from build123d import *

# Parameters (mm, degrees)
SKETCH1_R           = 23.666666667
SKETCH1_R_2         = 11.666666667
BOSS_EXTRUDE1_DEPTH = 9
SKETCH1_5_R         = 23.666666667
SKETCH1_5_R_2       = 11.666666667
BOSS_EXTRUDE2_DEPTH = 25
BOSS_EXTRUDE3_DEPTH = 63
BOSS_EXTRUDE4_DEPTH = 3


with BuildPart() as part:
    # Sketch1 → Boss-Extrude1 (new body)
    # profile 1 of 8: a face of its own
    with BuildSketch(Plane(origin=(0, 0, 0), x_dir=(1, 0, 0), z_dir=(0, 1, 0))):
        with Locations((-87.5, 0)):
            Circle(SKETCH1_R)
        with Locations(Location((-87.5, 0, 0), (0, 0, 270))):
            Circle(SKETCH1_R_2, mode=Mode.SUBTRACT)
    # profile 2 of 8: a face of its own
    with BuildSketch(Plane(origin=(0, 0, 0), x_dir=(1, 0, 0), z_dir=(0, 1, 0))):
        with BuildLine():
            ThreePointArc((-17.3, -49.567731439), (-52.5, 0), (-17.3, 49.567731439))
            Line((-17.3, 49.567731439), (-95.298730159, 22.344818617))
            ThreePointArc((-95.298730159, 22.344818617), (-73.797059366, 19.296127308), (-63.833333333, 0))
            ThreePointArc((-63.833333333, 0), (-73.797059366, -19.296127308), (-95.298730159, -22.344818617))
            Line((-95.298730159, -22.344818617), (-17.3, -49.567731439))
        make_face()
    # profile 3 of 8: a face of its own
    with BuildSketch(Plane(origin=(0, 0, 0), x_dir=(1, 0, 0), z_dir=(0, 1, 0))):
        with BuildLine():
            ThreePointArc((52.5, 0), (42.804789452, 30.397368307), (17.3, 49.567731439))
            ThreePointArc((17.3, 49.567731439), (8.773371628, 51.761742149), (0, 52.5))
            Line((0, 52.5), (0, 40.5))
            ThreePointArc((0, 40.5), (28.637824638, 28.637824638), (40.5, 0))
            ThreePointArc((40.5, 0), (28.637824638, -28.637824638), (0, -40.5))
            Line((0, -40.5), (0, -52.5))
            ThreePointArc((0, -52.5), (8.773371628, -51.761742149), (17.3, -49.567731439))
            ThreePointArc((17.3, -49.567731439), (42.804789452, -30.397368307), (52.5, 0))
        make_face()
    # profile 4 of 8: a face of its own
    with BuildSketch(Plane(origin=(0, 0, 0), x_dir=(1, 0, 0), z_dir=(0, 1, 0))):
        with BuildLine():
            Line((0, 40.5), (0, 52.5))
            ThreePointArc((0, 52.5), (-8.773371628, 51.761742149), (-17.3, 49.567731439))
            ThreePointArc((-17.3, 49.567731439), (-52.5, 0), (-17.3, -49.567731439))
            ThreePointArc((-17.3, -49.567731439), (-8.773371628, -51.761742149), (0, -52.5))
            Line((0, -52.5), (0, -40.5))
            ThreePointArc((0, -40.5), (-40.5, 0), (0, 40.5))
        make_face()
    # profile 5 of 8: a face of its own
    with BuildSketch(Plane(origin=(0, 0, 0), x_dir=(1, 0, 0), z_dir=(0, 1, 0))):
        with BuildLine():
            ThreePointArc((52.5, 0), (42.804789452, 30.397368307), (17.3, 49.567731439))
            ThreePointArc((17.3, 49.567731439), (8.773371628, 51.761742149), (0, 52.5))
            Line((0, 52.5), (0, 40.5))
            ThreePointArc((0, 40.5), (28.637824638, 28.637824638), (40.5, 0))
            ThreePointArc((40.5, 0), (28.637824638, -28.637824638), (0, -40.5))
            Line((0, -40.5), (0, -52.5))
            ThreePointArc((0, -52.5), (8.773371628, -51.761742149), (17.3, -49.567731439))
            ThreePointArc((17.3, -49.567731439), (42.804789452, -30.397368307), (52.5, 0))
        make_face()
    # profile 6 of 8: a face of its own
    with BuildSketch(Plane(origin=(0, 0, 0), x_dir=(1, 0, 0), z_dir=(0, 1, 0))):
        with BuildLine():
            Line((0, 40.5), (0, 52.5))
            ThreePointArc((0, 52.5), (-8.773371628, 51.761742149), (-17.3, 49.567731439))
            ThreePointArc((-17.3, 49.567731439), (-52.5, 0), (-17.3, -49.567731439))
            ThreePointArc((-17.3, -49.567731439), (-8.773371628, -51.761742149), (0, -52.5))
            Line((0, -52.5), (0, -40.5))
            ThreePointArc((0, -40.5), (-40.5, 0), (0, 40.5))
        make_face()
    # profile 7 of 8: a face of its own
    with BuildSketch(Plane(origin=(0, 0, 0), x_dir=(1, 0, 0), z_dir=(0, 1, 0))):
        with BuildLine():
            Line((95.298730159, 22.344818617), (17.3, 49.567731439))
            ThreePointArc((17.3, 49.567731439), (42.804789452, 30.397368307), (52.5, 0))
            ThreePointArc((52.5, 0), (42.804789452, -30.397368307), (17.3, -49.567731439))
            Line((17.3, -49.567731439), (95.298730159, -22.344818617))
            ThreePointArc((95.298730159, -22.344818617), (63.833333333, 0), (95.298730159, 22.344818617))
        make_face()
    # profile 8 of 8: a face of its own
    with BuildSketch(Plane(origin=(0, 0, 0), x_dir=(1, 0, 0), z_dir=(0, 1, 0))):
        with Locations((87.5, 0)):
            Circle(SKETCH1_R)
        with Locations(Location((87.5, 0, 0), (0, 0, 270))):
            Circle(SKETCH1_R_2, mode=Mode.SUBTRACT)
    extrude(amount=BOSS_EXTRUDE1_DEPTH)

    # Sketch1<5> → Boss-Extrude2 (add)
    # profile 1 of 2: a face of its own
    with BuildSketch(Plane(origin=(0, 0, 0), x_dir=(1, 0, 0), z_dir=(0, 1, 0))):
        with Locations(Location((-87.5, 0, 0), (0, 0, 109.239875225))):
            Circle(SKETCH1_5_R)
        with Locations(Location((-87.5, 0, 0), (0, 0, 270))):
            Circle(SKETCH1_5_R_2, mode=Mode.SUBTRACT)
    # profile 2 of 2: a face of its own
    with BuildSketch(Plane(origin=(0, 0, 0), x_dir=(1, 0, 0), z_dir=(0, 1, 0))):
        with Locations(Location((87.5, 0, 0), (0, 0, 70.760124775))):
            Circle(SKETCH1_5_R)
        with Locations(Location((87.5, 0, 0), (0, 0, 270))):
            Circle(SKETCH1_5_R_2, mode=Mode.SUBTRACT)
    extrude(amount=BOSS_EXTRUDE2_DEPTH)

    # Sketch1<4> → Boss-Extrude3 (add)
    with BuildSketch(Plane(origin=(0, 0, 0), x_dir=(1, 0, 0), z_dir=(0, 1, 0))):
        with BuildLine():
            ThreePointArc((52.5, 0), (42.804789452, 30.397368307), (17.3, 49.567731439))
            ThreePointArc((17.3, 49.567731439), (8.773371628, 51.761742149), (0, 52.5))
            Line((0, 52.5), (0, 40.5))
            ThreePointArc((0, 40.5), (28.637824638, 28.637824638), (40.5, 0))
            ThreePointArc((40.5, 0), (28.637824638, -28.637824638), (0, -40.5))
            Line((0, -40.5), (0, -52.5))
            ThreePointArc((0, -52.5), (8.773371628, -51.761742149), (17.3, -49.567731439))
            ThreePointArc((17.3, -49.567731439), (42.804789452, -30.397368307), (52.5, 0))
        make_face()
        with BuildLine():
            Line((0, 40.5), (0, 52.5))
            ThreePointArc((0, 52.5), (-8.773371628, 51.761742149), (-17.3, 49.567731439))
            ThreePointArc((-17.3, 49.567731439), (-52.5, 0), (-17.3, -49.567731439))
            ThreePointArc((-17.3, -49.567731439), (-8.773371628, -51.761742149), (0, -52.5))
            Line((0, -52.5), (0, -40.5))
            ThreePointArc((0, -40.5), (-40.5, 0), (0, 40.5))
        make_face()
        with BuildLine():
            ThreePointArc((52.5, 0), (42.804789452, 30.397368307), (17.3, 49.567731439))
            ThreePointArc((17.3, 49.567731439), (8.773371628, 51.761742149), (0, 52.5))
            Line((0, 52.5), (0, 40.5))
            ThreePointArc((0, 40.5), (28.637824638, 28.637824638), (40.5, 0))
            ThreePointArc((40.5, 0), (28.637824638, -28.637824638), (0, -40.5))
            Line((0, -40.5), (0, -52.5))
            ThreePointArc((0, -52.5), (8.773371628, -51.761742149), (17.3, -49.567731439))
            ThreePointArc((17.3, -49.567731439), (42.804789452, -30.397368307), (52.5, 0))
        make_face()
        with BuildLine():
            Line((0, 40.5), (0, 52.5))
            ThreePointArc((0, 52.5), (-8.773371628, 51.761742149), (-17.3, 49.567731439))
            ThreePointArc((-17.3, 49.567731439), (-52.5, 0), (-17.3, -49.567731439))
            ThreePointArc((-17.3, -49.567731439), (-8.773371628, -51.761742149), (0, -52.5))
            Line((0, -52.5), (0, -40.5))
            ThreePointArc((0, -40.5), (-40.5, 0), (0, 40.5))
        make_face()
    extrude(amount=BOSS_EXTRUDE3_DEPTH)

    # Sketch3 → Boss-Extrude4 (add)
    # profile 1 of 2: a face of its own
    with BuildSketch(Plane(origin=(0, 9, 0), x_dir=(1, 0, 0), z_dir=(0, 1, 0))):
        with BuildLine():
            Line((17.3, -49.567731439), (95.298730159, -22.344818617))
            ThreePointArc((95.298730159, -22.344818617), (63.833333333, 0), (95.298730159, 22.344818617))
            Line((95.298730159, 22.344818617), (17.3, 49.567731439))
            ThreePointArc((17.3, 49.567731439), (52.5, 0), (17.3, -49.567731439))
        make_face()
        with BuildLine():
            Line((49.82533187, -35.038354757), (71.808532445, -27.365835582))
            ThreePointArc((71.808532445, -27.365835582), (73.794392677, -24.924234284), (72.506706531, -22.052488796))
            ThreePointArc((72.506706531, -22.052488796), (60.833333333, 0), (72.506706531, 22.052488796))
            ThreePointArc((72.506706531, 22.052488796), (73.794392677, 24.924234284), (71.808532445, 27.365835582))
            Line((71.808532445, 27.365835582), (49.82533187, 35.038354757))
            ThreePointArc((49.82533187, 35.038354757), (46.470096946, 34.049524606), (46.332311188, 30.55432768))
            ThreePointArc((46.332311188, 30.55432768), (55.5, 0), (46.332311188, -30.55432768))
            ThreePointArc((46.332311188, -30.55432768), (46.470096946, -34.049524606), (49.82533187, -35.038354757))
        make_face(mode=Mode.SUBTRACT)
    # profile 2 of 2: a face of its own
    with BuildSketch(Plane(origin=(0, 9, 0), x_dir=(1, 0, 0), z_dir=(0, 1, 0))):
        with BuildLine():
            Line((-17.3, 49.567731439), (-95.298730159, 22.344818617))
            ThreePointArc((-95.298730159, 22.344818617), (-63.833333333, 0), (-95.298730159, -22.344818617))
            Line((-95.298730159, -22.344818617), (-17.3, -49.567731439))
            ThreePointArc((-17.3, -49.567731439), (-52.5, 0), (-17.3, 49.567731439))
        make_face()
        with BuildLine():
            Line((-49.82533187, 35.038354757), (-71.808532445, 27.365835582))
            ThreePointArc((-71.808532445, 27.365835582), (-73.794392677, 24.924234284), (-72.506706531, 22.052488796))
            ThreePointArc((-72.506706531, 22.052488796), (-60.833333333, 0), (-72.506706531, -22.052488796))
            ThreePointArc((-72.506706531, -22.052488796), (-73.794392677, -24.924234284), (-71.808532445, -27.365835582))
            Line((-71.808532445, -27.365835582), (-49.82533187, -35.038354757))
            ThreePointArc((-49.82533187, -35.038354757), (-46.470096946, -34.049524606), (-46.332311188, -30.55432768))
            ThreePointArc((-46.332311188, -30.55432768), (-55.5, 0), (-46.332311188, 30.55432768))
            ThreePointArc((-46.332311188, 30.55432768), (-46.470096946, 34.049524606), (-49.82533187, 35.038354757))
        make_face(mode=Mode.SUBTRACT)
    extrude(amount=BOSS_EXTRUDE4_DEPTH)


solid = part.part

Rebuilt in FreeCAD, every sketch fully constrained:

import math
import FreeCAD as App
import Part
import Sketcher

V = App.Vector

doc = App.newDocument("Part")
params = doc.addObject("Spreadsheet::Sheet", "Params")
for row, (alias, value) in enumerate([
    ("sketch1_radius", "52.5 mm"),
    ("sketch1_radius2", "40.5 mm"),
    ("pad1_length", "9 mm"),
    ("pad2_length", "25 mm"),
    ("sketch3_radius", "52.5 mm"),
    ("sketch3_radius2", "40.5 mm"),
    ("pad3_length", "63 mm"),
    ("sketch4_radius", "3 mm"),
    ("sketch4_radius2", "52.5 mm"),
    ("sketch4_radius3", "55.5 mm"),
    ("pad4_length", "3 mm"),
], start=1):
    params.set(f"A{row}", alias)
    params.set(f"B{row}", "=" + value)
    params.setAlias(f"B{row}", alias)

body = doc.addObject("PartDesign::Body", "Body")

# Sketch on XZ plane
sketch1 = doc.addObject("Sketcher::SketchObject", "Sketch")
body.addObject(sketch1)
sketch1.AttachmentSupport = (doc.XZ_Plane, [""])
sketch1.MapMode = "FlatFace"
sketch1.addGeometry(Part.ArcOfCircle(Part.Circle(V(-88, 0, 0), V(0, 0, 1), 24), math.radians(109), math.radians(251)), False)
sketch1.addGeometry(Part.LineSegment(V(-95, 22, 0), V(-17, 50, 0)), False)
sketch1.addGeometry(Part.ArcOfCircle(Part.Circle(V(0, 0, 0), V(0, 0, 1), 52), math.radians(90), math.radians(109.24)), False)
sketch1.addGeometry(Part.ArcOfCircle(Part.Circle(V(0, 0, 0), V(0, 0, 1), 52), math.radians(70.76), math.radians(90)), False)
sketch1.addGeometry(Part.LineSegment(V(17, 50, 0), V(95, 22, 0)), False)
sketch1.addGeometry(Part.ArcOfCircle(Part.Circle(V(88, 0, 0), V(0, 0, 1), 24), math.radians(-71), math.radians(71)), False)
sketch1.addGeometry(Part.LineSegment(V(95, -22, 0), V(17, -50, 0)), False)
sketch1.addGeometry(Part.ArcOfCircle(Part.Circle(V(0, 0, 0), V(0, 0, 1), 52), math.radians(-90), math.radians(-70.76)), False)
sketch1.addGeometry(Part.ArcOfCircle(Part.Circle(V(0, 0, 0), V(0, 0, 1), 52), math.radians(-109.24), math.radians(-90)), False)
sketch1.addGeometry(Part.LineSegment(V(-17, -50, 0), V(-95, -22, 0)), False)
sketch1.addGeometry(Part.Circle(V(-88, 0, 0), V(0, 0, 1), 12), False)
sketch1.addGeometry(Part.ArcOfCircle(Part.Circle(V(0, 0, 0), V(0, 0, 1), 40), math.radians(90), math.radians(270)), False)
sketch1.addGeometry(Part.ArcOfCircle(Part.Circle(V(0, 0, 0), V(0, 0, 1), 40), math.radians(-90), math.radians(0)), False)
sketch1.addGeometry(Part.ArcOfCircle(Part.Circle(V(0, 0, 0), V(0, 0, 1), 40), math.radians(0), math.radians(90)), False)
sketch1.addGeometry(Part.Circle(V(88, 0, 0), V(0, 0, 1), 12), False)
sketch1.addConstraint(Sketcher.Constraint("Tangent", 0, 1, 1, 1))
sketch1.addConstraint(Sketcher.Constraint("Tangent", 1, 2, 2, 2))
sketch1.addConstraint(Sketcher.Constraint("Tangent", 2, 1, 3, 2))
sketch1.addConstraint(Sketcher.Constraint("Tangent", 3, 1, 4, 1))
sketch1.addConstraint(Sketcher.Constraint("Tangent", 4, 2, 5, 2))
sketch1.addConstraint(Sketcher.Constraint("Tangent", 5, 1, 6, 1))
sketch1.addConstraint(Sketcher.Constraint("Tangent", 6, 2, 7, 2))
sketch1.addConstraint(Sketcher.Constraint("Tangent", 7, 1, 8, 2))
sketch1.addConstraint(Sketcher.Constraint("Tangent", 8, 1, 9, 1))
sketch1.addConstraint(Sketcher.Constraint("Tangent", 9, 2, 0, 2))
sketch1.addConstraint(Sketcher.Constraint("Tangent", 11, 2, 12, 1))
sketch1.addConstraint(Sketcher.Constraint("Tangent", 12, 2, 13, 1))
sketch1.addConstraint(Sketcher.Constraint("Tangent", 13, 2, 11, 1))
sketch1.addConstraint(Sketcher.Constraint("Coincident", 2, 3, -1, 1))
sketch1.addConstraint(Sketcher.Constraint("Coincident", 7, 3, -1, 1))
sketch1.addConstraint(Sketcher.Constraint("Coincident", 11, 3, -1, 1))
sketch1.addConstraint(Sketcher.Constraint("Coincident", 10, 3, 0, 3))
sketch1.addConstraint(Sketcher.Constraint("Coincident", 14, 3, 5, 3))
sketch1.addConstraint(Sketcher.Constraint("Equal", 2, 3))
sketch1.addConstraint(Sketcher.Constraint("Equal", 0, 5))
sketch1.addConstraint(Sketcher.Constraint("Equal", 3, 7))
sketch1.addConstraint(Sketcher.Constraint("Equal", 7, 8))
sketch1.addConstraint(Sketcher.Constraint("Equal", 10, 14))
sketch1.addConstraint(Sketcher.Constraint("Symmetric", 0, 3, 5, 3, -1, 1))
sketch1.addConstraint(Sketcher.Constraint("PointOnObject", 0, 3, -1))
sketch1.addConstraint(Sketcher.Constraint("PointOnObject", 2, 1, -2))
sketch1.addConstraint(Sketcher.Constraint("PointOnObject", 7, 1, -2))
sketch1.addConstraint(Sketcher.Constraint("PointOnObject", 11, 2, -2))
sketch1.addConstraint(Sketcher.Constraint("PointOnObject", 12, 2, -1))
sketch1.addConstraint(Sketcher.Constraint("PointOnObject", 13, 2, -2))
sketch1.addConstraint(Sketcher.Constraint("Radius", 2, 52.5))
sketch1.addConstraint(Sketcher.Constraint("Radius", 11, 40.5))
sketch1.addConstraint(Sketcher.Constraint("DistanceX", 0, 3, 5, 3, 175.0))
sketch1.addConstraint(Sketcher.Constraint("DistanceX", 1, 2, -1, 1, 17.3))
sketch1.addConstraint(Sketcher.Constraint("Diameter", 10, 23.333333))
sketch1.setExpression("Constraints[30]", "Params.sketch1_radius")
sketch1.setExpression("Constraints[31]", "Params.sketch1_radius2")
pad1 = doc.addObject("PartDesign::Pad", "Pad")
body.addObject(pad1)
pad1.Profile = sketch1
pad1.setExpression("Length", "Params.pad1_length")
pad1.Reversed = True

# Sketch on XZ plane
sketch2 = doc.addObject("Sketcher::SketchObject", "Sketch001")
body.addObject(sketch2)
sketch2.AttachmentSupport = (doc.XZ_Plane, [""])
sketch2.MapMode = "FlatFace"
sketch2.addGeometry(Part.Circle(V(-88, 0, 0), V(0, 0, 1), 24), False)
sketch2.addGeometry(Part.Circle(V(-88, 0, 0), V(0, 0, 1), 12), False)
sketch2.addGeometry(Part.Circle(V(88, 0, 0), V(0, 0, 1), 24), False)
sketch2.addGeometry(Part.Circle(V(88, 0, 0), V(0, 0, 1), 12), False)
sketch2.addConstraint(Sketcher.Constraint("Coincident", 1, 3, 0, 3))
sketch2.addConstraint(Sketcher.Constraint("Coincident", 3, 3, 2, 3))
sketch2.addConstraint(Sketcher.Constraint("Equal", 0, 2))
sketch2.addConstraint(Sketcher.Constraint("Equal", 1, 3))
sketch2.addConstraint(Sketcher.Constraint("Symmetric", 0, 3, 2, 3, -1, 1))
sketch2.addConstraint(Sketcher.Constraint("PointOnObject", 0, 3, -1))
sketch2.addConstraint(Sketcher.Constraint("DistanceX", 0, 3, 2, 3, 175.0))
sketch2.addConstraint(Sketcher.Constraint("Diameter", 0, 47.333333))
sketch2.addConstraint(Sketcher.Constraint("Diameter", 1, 23.333333))
pad2 = doc.addObject("PartDesign::Pad", "Pad001")
body.addObject(pad2)
pad2.Profile = sketch2
pad2.setExpression("Length", "Params.pad2_length")
pad2.Reversed = True

# Sketch on XZ plane
sketch3 = doc.addObject("Sketcher::SketchObject", "Sketch002")
body.addObject(sketch3)
sketch3.AttachmentSupport = (doc.XZ_Plane, [""])
sketch3.MapMode = "FlatFace"
sketch3.addGeometry(Part.ArcOfCircle(Part.Circle(V(0, 0, 0), V(0, 0, 1), 52), math.radians(70.76), math.radians(90)), False)
sketch3.addGeometry(Part.ArcOfCircle(Part.Circle(V(0, 0, 0), V(0, 0, 1), 52), math.radians(0), math.radians(71)), False)
sketch3.addGeometry(Part.ArcOfCircle(Part.Circle(V(0, 0, 0), V(0, 0, 1), 52), math.radians(-71), math.radians(0)), False)
sketch3.addGeometry(Part.ArcOfCircle(Part.Circle(V(0, 0, 0), V(0, 0, 1), 52), math.radians(-90), math.radians(-70.76)), False)
sketch3.addGeometry(Part.ArcOfCircle(Part.Circle(V(0, 0, 0), V(0, 0, 1), 52), math.radians(-109.24), math.radians(-90)), False)
sketch3.addGeometry(Part.ArcOfCircle(Part.Circle(V(0, 0, 0), V(0, 0, 1), 52), math.radians(109), math.radians(251)), False)
sketch3.addGeometry(Part.ArcOfCircle(Part.Circle(V(0, 0, 0), V(0, 0, 1), 52), math.radians(90), math.radians(109.24)), False)
sketch3.addGeometry(Part.ArcOfCircle(Part.Circle(V(0, 0, 0), V(0, 0, 1), 40), math.radians(0), math.radians(90)), False)
sketch3.addGeometry(Part.ArcOfCircle(Part.Circle(V(0, 0, 0), V(0, 0, 1), 40), math.radians(90), math.radians(270)), False)
sketch3.addGeometry(Part.ArcOfCircle(Part.Circle(V(0, 0, 0), V(0, 0, 1), 40), math.radians(-90), math.radians(0)), False)
sketch3.addConstraint(Sketcher.Constraint("Tangent", 0, 1, 1, 2))
sketch3.addConstraint(Sketcher.Constraint("Tangent", 1, 1, 2, 2))
sketch3.addConstraint(Sketcher.Constraint("Tangent", 2, 1, 3, 2))
sketch3.addConstraint(Sketcher.Constraint("Tangent", 3, 1, 4, 2))
sketch3.addConstraint(Sketcher.Constraint("Tangent", 4, 1, 5, 2))
sketch3.addConstraint(Sketcher.Constraint("Tangent", 5, 1, 6, 2))
sketch3.addConstraint(Sketcher.Constraint("Tangent", 6, 1, 0, 2))
sketch3.addConstraint(Sketcher.Constraint("Tangent", 7, 2, 8, 1))
sketch3.addConstraint(Sketcher.Constraint("Tangent", 8, 2, 9, 1))
sketch3.addConstraint(Sketcher.Constraint("Tangent", 9, 2, 7, 1))
sketch3.addConstraint(Sketcher.Constraint("Coincident", 0, 3, -1, 1))
sketch3.addConstraint(Sketcher.Constraint("Coincident", 2, 3, -1, 1))
sketch3.addConstraint(Sketcher.Constraint("Coincident", 4, 3, -1, 1))
sketch3.addConstraint(Sketcher.Constraint("Coincident", 7, 3, -1, 1))
sketch3.addConstraint(Sketcher.Constraint("PointOnObject", 1, 1, -1))
sketch3.addConstraint(Sketcher.Constraint("PointOnObject", 3, 1, -2))
sketch3.addConstraint(Sketcher.Constraint("PointOnObject", 6, 1, -2))
sketch3.addConstraint(Sketcher.Constraint("PointOnObject", 7, 2, -2))
sketch3.addConstraint(Sketcher.Constraint("PointOnObject", 8, 2, -2))
sketch3.addConstraint(Sketcher.Constraint("PointOnObject", 9, 2, -1))
sketch3.addConstraint(Sketcher.Constraint("Horizontal", 2, 1, 4, 1))
sketch3.addConstraint(Sketcher.Constraint("Horizontal", 0, 1, 5, 1))
sketch3.addConstraint(Sketcher.Constraint("Vertical", 0, 1, 2, 1))
sketch3.addConstraint(Sketcher.Constraint("Radius", 0, 52.5))
sketch3.addConstraint(Sketcher.Constraint("Radius", 7, 40.5))
sketch3.addConstraint(Sketcher.Constraint("DistanceX", -1, 1, 0, 1, 17.3))
sketch3.setExpression("Constraints[23]", "Params.sketch3_radius")
sketch3.setExpression("Constraints[24]", "Params.sketch3_radius2")
pad3 = doc.addObject("PartDesign::Pad", "Pad002")
body.addObject(pad3)
pad3.Profile = sketch3
pad3.setExpression("Length", "Params.pad3_length")
pad3.Reversed = True

# Sketch on XZ plane
sketch4 = doc.addObject("Sketcher::SketchObject", "Sketch003")
body.addObject(sketch4)
sketch4.AttachmentSupport = (doc.XZ_Plane, [""])
sketch4.MapMode = "FlatFace"
sketch4.AttachmentOffset = App.Placement(V(0, 0, -9), App.Rotation())
sketch4.addGeometry(Part.LineSegment(V(17.3, 49.6, 0), V(95.3, 22.3, 0)), False)
sketch4.addGeometry(Part.ArcOfCircle(Part.Circle(V(87.5, 0, 0), V(0, 0, 1), 23.7), math.radians(71), math.radians(289)), False)
sketch4.addGeometry(Part.LineSegment(V(95.3, -22.3, 0), V(17.3, -49.6, 0)), False)
sketch4.addGeometry(Part.ArcOfCircle(Part.Circle(V(0, 0, 0), V(0, 0, 1), 52.5), math.radians(-71), math.radians(71)), False)
sketch4.addGeometry(Part.LineSegment(V(71.8, 27.4, 0), V(49.8, 35, 0)), False)
sketch4.addGeometry(Part.ArcOfCircle(Part.Circle(V(48.8, 32.2, 0), V(0, 0, 1), 3), math.radians(71), math.radians(213)), False)
sketch4.addGeometry(Part.ArcOfCircle(Part.Circle(V(0, 0, 0), V(0, 0, 1), 55.5), math.radians(-33), math.radians(33)), False)
sketch4.addGeometry(Part.ArcOfCircle(Part.Circle(V(48.8, -32.2, 0), V(0, 0, 1), 3), math.radians(147), math.radians(289)), False)
sketch4.addGeometry(Part.LineSegment(V(49.8, -35, 0), V(71.8, -27.4, 0)), False)
sketch4.addGeometry(Part.ArcOfCircle(Part.Circle(V(70.8, -24.5, 0), V(0, 0, 1), 3), math.radians(-71), math.radians(56)), False)
sketch4.addGeometry(Part.ArcOfCircle(Part.Circle(V(87.5, 0, 0), V(0, 0, 1), 26.7), math.radians(124), math.radians(236)), False)
sketch4.addGeometry(Part.ArcOfCircle(Part.Circle(V(70.8, 24.5, 0), V(0, 0, 1), 3), math.radians(-56), math.radians(71)), False)
sketch4.addGeometry(Part.LineSegment(V(-17.3, -49.6, 0), V(-95.3, -22.3, 0)), False)
sketch4.addGeometry(Part.ArcOfCircle(Part.Circle(V(-87.5, 0, 0), V(0, 0, 1), 23.7), math.radians(-109), math.radians(109)), False)
sketch4.addGeometry(Part.LineSegment(V(-95.3, 22.3, 0), V(-17.3, 49.6, 0)), False)
sketch4.addGeometry(Part.ArcOfCircle(Part.Circle(V(0, 0, 0), V(0, 0, 1), 52.5), math.radians(109), math.radians(251)), False)
sketch4.addGeometry(Part.LineSegment(V(-71.8, -27.4, 0), V(-49.8, -35, 0)), False)
sketch4.addGeometry(Part.ArcOfCircle(Part.Circle(V(-48.8, -32.2, 0), V(0, 0, 1), 3), math.radians(-109), math.radians(33)), False)
sketch4.addGeometry(Part.ArcOfCircle(Part.Circle(V(0, 0, 0), V(0, 0, 1), 55.5), math.radians(147), math.radians(213)), False)
sketch4.addGeometry(Part.ArcOfCircle(Part.Circle(V(-48.8, 32.2, 0), V(0, 0, 1), 3), math.radians(-33), math.radians(109)), False)
sketch4.addGeometry(Part.LineSegment(V(-49.8, 35, 0), V(-71.8, 27.4, 0)), False)
sketch4.addGeometry(Part.ArcOfCircle(Part.Circle(V(-70.8, 24.5, 0), V(0, 0, 1), 3), math.radians(109), math.radians(236)), False)
sketch4.addGeometry(Part.ArcOfCircle(Part.Circle(V(-87.5, 0, 0), V(0, 0, 1), 26.7), math.radians(-56), math.radians(56)), False)
sketch4.addGeometry(Part.ArcOfCircle(Part.Circle(V(-70.8, -24.5, 0), V(0, 0, 1), 3), math.radians(124), math.radians(251)), False)
sketch4.addConstraint(Sketcher.Constraint("Tangent", 0, 2, 1, 1))
sketch4.addConstraint(Sketcher.Constraint("Tangent", 1, 2, 2, 1))
sketch4.addConstraint(Sketcher.Constraint("Tangent", 2, 2, 3, 1))
sketch4.addConstraint(Sketcher.Constraint("Tangent", 3, 2, 0, 1))
sketch4.addConstraint(Sketcher.Constraint("Tangent", 4, 2, 5, 1))
sketch4.addConstraint(Sketcher.Constraint("Tangent", 5, 2, 6, 2))
sketch4.addConstraint(Sketcher.Constraint("Tangent", 6, 1, 7, 1))
sketch4.addConstraint(Sketcher.Constraint("Tangent", 7, 2, 8, 1))
sketch4.addConstraint(Sketcher.Constraint("Tangent", 8, 2, 9, 1))
sketch4.addConstraint(Sketcher.Constraint("Tangent", 9, 2, 10, 2))
sketch4.addConstraint(Sketcher.Constraint("Tangent", 10, 1, 11, 1))
sketch4.addConstraint(Sketcher.Constraint("Tangent", 11, 2, 4, 1))
sketch4.addConstraint(Sketcher.Constraint("Tangent", 12, 2, 13, 1))
sketch4.addConstraint(Sketcher.Constraint("Tangent", 13, 2, 14, 1))
sketch4.addConstraint(Sketcher.Constraint("Tangent", 14, 2, 15, 1))
sketch4.addConstraint(Sketcher.Constraint("Tangent", 15, 2, 12, 1))
sketch4.addConstraint(Sketcher.Constraint("Tangent", 16, 2, 17, 1))
sketch4.addConstraint(Sketcher.Constraint("Tangent", 17, 2, 18, 2))
sketch4.addConstraint(Sketcher.Constraint("Tangent", 18, 1, 19, 1))
sketch4.addConstraint(Sketcher.Constraint("Tangent", 19, 2, 20, 1))
sketch4.addConstraint(Sketcher.Constraint("Tangent", 20, 2, 21, 1))
sketch4.addConstraint(Sketcher.Constraint("Tangent", 21, 2, 22, 2))
sketch4.addConstraint(Sketcher.Constraint("Tangent", 22, 1, 23, 1))
sketch4.addConstraint(Sketcher.Constraint("Tangent", 23, 2, 16, 1))
sketch4.addConstraint(Sketcher.Constraint("Coincident", 3, 3, -1, 1))
sketch4.addConstraint(Sketcher.Constraint("Coincident", 6, 3, -1, 1))
sketch4.addConstraint(Sketcher.Constraint("Coincident", 15, 3, -1, 1))
sketch4.addConstraint(Sketcher.Constraint("Coincident", 18, 3, -1, 1))
sketch4.addConstraint(Sketcher.Constraint("Coincident", 10, 3, 1, 3))
sketch4.addConstraint(Sketcher.Constraint("Coincident", 22, 3, 13, 3))
sketch4.addConstraint(Sketcher.Constraint("Equal", 5, 7))
sketch4.addConstraint(Sketcher.Constraint("Equal", 7, 9))
sketch4.addConstraint(Sketcher.Constraint("Equal", 9, 11))
sketch4.addConstraint(Sketcher.Constraint("Equal", 1, 13))
sketch4.addConstraint(Sketcher.Constraint("Equal", 3, 15))
sketch4.addConstraint(Sketcher.Constraint("Equal", 11, 17))
sketch4.addConstraint(Sketcher.Constraint("Equal", 6, 18))
sketch4.addConstraint(Sketcher.Constraint("Equal", 17, 19))
sketch4.addConstraint(Sketcher.Constraint("Equal", 19, 21))
sketch4.addConstraint(Sketcher.Constraint("Equal", 10, 22))
sketch4.addConstraint(Sketcher.Constraint("Equal", 21, 23))
sketch4.addConstraint(Sketcher.Constraint("Symmetric", 1, 3, 13, 3, -1, 1))
sketch4.addConstraint(Sketcher.Constraint("Symmetric", 4, 2, 16, 2, -1, 1))
sketch4.addConstraint(Sketcher.Constraint("Symmetric", 7, 2, 19, 2, -1, 1))
sketch4.addConstraint(Sketcher.Constraint("Symmetric", 11, 3, 21, 3, -2))
sketch4.addConstraint(Sketcher.Constraint("Parallel", 0, 4))
sketch4.addConstraint(Sketcher.Constraint("Parallel", 2, 8))
sketch4.addConstraint(Sketcher.Constraint("Radius", 5, 3.0))
sketch4.addConstraint(Sketcher.Constraint("Radius", 3, 52.5))
sketch4.addConstraint(Sketcher.Constraint("Radius", 6, 55.5))
sketch4.addConstraint(Sketcher.Constraint("DistanceX", -1, 1, 1, 3, 87.5))
sketch4.addConstraint(Sketcher.Constraint("DistanceX", -1, 1, 2, 2, 17.3))
sketch4.addConstraint(Sketcher.Constraint("Radius", 10, 26.666667))
sketch4.addConstraint(Sketcher.Constraint("DistanceX", 7, 3, 9, 3, 21.983201))
sketch4.setExpression("Constraints[47]", "Params.sketch4_radius")
sketch4.setExpression("Constraints[48]", "Params.sketch4_radius2")
sketch4.setExpression("Constraints[49]", "Params.sketch4_radius3")
pad4 = doc.addObject("PartDesign::Pad", "Pad003")
body.addObject(pad4)
pad4.Profile = sketch4
pad4.setExpression("Length", "Params.pad4_length")
pad4.Reversed = True

doc.recompute()
